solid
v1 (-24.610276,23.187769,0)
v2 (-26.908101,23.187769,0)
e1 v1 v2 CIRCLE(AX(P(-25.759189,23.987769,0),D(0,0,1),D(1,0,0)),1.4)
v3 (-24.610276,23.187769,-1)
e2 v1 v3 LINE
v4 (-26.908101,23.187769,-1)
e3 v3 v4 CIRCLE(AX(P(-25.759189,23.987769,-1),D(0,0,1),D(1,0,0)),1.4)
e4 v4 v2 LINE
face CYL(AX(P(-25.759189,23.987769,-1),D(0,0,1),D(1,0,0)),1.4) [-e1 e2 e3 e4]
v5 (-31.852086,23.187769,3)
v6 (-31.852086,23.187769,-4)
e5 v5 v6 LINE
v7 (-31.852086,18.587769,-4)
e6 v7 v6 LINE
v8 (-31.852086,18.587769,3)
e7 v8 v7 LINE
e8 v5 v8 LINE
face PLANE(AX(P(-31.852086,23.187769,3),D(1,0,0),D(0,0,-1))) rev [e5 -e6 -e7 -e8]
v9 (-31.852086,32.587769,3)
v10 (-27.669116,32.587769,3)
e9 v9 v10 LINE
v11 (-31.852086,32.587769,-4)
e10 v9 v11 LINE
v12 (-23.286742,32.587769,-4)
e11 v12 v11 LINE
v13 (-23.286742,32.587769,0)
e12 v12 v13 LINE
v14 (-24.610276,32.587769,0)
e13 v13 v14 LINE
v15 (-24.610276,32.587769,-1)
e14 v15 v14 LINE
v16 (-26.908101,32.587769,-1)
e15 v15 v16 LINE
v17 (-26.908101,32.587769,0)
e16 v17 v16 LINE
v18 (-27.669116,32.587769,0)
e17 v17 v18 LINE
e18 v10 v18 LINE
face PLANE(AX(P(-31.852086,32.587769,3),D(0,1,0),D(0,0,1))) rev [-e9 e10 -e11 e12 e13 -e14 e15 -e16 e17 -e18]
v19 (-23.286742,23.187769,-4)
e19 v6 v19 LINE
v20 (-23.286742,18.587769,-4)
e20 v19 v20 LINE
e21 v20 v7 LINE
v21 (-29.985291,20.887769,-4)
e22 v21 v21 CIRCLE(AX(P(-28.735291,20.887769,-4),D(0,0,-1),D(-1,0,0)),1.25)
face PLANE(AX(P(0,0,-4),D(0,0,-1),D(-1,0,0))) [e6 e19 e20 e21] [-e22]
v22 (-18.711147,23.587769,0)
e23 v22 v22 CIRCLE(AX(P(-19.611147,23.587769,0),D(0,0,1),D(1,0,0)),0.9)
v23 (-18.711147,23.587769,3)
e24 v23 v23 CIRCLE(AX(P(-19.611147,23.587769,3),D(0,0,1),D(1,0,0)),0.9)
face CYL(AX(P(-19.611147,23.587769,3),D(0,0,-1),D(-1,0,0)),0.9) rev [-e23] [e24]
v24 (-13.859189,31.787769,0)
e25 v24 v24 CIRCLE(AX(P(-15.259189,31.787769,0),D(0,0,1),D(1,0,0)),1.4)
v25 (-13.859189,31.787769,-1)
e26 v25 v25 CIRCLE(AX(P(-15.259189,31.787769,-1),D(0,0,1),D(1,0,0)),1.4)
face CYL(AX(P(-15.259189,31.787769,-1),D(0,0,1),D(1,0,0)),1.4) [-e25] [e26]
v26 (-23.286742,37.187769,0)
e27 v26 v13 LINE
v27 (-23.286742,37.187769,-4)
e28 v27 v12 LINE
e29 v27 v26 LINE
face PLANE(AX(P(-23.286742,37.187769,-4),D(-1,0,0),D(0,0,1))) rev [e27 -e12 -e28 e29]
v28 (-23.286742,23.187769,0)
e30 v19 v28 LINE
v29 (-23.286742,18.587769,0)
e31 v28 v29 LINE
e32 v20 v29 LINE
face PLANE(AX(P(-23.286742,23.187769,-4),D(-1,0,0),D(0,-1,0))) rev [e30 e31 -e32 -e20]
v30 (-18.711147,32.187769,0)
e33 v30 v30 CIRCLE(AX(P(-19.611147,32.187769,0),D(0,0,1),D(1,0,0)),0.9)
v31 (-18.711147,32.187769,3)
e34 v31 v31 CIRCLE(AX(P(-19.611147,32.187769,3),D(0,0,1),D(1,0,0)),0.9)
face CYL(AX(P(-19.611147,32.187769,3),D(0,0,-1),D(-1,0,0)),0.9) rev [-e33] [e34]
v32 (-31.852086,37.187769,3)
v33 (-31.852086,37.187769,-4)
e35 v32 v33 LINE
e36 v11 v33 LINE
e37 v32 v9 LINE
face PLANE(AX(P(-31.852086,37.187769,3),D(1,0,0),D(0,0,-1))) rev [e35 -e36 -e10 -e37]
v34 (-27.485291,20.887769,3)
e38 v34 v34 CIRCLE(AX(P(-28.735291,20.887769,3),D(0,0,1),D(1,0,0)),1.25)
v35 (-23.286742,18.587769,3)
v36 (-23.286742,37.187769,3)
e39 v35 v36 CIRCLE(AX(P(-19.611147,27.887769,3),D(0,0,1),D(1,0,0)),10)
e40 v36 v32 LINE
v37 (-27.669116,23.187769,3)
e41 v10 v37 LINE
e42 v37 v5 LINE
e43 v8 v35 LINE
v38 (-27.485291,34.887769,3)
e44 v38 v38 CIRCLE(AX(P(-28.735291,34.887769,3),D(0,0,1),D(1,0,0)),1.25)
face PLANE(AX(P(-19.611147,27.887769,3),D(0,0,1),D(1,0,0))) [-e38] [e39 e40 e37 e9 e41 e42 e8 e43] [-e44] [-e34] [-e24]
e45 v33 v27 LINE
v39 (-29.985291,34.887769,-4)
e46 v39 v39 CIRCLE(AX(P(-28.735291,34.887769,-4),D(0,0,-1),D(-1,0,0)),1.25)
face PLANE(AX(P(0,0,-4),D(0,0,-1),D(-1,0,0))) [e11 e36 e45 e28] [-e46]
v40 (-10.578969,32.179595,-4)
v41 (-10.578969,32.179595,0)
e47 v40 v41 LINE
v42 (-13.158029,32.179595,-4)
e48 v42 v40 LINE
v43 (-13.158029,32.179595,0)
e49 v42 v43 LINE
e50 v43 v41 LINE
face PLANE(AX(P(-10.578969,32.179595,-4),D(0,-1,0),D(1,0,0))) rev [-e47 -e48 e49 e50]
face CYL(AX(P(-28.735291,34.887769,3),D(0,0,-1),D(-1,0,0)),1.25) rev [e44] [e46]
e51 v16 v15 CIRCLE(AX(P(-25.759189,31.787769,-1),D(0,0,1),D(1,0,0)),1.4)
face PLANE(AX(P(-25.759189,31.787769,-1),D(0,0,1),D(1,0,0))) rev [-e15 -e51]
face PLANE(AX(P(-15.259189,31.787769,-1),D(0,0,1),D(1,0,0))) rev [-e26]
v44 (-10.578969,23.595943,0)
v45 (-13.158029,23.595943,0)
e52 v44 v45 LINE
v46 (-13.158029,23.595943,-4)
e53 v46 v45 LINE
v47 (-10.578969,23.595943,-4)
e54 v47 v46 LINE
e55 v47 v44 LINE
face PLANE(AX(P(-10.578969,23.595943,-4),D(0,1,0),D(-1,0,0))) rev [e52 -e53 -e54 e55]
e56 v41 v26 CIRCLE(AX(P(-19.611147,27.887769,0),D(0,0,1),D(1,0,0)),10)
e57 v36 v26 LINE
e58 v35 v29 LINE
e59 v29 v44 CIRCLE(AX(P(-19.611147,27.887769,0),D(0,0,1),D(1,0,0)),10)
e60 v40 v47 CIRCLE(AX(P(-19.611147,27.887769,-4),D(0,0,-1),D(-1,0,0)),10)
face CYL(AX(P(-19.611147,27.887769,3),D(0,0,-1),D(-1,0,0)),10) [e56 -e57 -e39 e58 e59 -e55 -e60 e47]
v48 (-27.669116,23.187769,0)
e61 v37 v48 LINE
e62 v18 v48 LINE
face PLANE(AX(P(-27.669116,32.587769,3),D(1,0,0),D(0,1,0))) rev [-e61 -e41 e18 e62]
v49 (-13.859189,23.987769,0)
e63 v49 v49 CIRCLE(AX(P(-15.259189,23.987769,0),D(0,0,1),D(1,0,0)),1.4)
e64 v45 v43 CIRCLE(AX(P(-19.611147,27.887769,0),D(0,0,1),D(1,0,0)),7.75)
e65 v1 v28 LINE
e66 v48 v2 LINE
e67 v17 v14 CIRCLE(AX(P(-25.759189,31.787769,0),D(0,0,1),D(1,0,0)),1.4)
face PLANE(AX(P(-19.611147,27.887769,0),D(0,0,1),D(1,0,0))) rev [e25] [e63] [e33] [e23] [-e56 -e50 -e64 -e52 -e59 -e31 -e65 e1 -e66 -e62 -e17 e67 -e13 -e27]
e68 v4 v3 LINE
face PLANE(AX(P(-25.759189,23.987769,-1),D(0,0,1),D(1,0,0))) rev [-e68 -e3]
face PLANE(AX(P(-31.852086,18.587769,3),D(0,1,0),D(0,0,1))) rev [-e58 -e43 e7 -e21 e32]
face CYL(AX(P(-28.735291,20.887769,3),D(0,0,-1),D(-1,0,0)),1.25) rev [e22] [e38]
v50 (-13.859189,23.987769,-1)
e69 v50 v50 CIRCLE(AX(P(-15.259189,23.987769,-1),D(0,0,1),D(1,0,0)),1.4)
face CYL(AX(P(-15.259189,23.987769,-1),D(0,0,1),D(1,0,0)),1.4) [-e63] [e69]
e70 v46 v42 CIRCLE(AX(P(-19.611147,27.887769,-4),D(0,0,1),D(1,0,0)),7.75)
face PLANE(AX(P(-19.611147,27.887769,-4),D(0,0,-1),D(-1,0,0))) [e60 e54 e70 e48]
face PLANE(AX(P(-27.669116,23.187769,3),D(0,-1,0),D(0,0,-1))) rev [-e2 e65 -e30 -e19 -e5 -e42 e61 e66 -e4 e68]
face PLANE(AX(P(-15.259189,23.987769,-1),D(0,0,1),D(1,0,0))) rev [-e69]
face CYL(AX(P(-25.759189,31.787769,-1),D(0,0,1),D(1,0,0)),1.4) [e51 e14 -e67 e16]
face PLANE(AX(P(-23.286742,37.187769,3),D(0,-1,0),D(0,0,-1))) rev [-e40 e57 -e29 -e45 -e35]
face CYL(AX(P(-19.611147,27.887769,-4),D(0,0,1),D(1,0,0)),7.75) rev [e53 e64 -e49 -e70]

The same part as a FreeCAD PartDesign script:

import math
import FreeCAD as App
import Part
import Sketcher
from FreeCAD import Vector

doc = App.newDocument("Part")
body = doc.addObject("PartDesign::Body", "Body")

# Sketch on XY plane
sketch1 = doc.addObject("Sketcher::SketchObject", "Sketch")
body.addObject(sketch1)
sketch1.AttachmentSupport = (doc.XY_Plane, [""])
sketch1.MapMode = "FlatFace"
sketch1.addGeometry([
    Part.LineSegment(Vector(-23.3, 37.2, 0), Vector(-31.9, 37.2, 0)),  # 0
    Part.LineSegment(Vector(-31.9, 37.2, 0), Vector(-31.9, 32.6, 0)),  # 1
    Part.LineSegment(Vector(-31.9, 32.6, 0), Vector(-27.7, 32.6, 0)),  # 2
    Part.LineSegment(Vector(-27.7, 32.6, 0), Vector(-27.7, 23.2, 0)),  # 3
    Part.LineSegment(Vector(-27.7, 23.2, 0), Vector(-31.9, 23.2, 0)),  # 4
    Part.LineSegment(Vector(-31.9, 23.2, 0), Vector(-31.9, 18.6, 0)),  # 5
    Part.LineSegment(Vector(-31.9, 18.6, 0), Vector(-23.3, 18.6, 0)),  # 6
    Part.ArcOfCircle(Part.Circle(Vector(-19.6, 27.9, 0), Vector(0, 0, 1), 10), math.radians(-112), math.radians(112)),  # 7
    Part.Circle(Vector(-28.7, 20.9, 0), Vector(0, 0, 1), 1.2),  # 8
    Part.Circle(Vector(-19.6, 23.6, 0), Vector(0, 0, 1), 0.9),  # 9
    Part.Circle(Vector(-28.7, 34.9, 0), Vector(0, 0, 1), 1.2),  # 10
    Part.Circle(Vector(-19.6, 32.2, 0), Vector(0, 0, 1), 0.9),  # 11
], False)
sketch1.addConstraint([
    Sketcher.Constraint("Coincident", 0, 2, 1, 1),
    Sketcher.Constraint("Coincident", 1, 2, 2, 1),
    Sketcher.Constraint("Coincident", 2, 2, 3, 1),
    Sketcher.Constraint("Coincident", 3, 2, 4, 1),
    Sketcher.Constraint("Coincident", 4, 2, 5, 1),
    Sketcher.Constraint("Coincident", 5, 2, 6, 1),
    Sketcher.Constraint("Coincident", 6, 2, 7, 1),
    Sketcher.Constraint("Coincident", 7, 2, 0, 1),
    Sketcher.Constraint("Horizontal", 0),
    Sketcher.Constraint("Vertical", 1),
    Sketcher.Constraint("Horizontal", 2),
    Sketcher.Constraint("Vertical", 3),
    Sketcher.Constraint("Horizontal", 4),
    Sketcher.Constraint("Vertical", 5),
    Sketcher.Constraint("Horizontal", 6),
    Sketcher.Constraint("Equal", 8, 10),
    Sketcher.Constraint("Equal", 9, 11),
    Sketcher.Constraint("Vertical", 7, 3, 9, 3),
    Sketcher.Constraint("Vertical", 8, 3, 10, 3),
    Sketcher.Constraint("Vertical", 9, 3, 11, 3),
    Sketcher.Constraint("Vertical", 1, 2, 4, 2),
    Sketcher.Constraint("Vertical", 6, 2, 7, 2),
    Sketcher.Constraint("Equal", 1, 5),
    Sketcher.Constraint("Radius", 7, 10.0),
    Sketcher.Constraint("Diameter", 8, 2.5),
    Sketcher.Constraint("Diameter", 9, 1.8),
    Sketcher.Constraint("DistanceY", 1, 2, 1, 1, 4.6),
    Sketcher.Constraint("DistanceY", 3, 2, 3, 1, 9.4),
    Sketcher.Constraint("DistanceY", 8, 3, 7, 3, 7.0),
    Sketcher.Constraint("DistanceY", 7, 3, 10, 3, 7.0),
    Sketcher.Constraint("DistanceY", 11, 3, 0, 2, 5.0),
    Sketcher.Constraint("DistanceY", 5, 2, 9, 3, 5.0),
    Sketcher.Constraint("DistanceX", 2, 1, 2, 2, 4.18297),
    Sketcher.Constraint("DistanceX", 0, 2, 0, 1, 8.565344),
    Sketcher.Constraint("DistanceY", -1, 1, 7, 3, 27.887769),
    Sketcher.Constraint("DistanceX", 8, 3, -1, 1, 28.735291),
    Sketcher.Constraint("DistanceX", 6, 2, -1, 1, 23.286742),
])
pad1 = doc.addObject("PartDesign::Pad", "Pad")
body.addObject(pad1)
pad1.Profile = sketch1
pad1.Length = 3

# Sketch on XY plane
sketch2 = doc.addObject("Sketcher::SketchObject", "Sketch001")
body.addObject(sketch2)
sketch2.AttachmentSupport = (doc.XY_Plane, [""])
sketch2.MapMode = "FlatFace"
sketch2.addGeometry([
    Part.Circle(Vector(-25.8, 31.8, 0), Vector(0, 0, 1), 1.4),
    Part.Circle(Vector(-25.8, 24, 0), Vector(0, 0, 1), 1.4),
    Part.Circle(Vector(-15.3, 24, 0), Vector(0, 0, 1), 1.4),
    Part.Circle(Vector(-15.3, 31.8, 0), Vector(0, 0, 1), 1.4),
], False)
sketch2.addConstraint([
    Sketcher.Constraint("Equal", 0, 1),
    Sketcher.Constraint("Equal", 1, 2),
    Sketcher.Constraint("Equal", 2, 3),
    Sketcher.Constraint("Horizontal", 1, 3, 2, 3),
    Sketcher.Constraint("Horizontal", 0, 3, 3, 3),
    Sketcher.Constraint("Vertical", 0, 3, 1, 3),
    Sketcher.Constraint("Vertical", 2, 3, 3, 3),
    Sketcher.Constraint("Diameter", 0, 2.8),
    Sketcher.Constraint("DistanceY", 1, 3, 0, 3, 7.8),
    Sketcher.Constraint("DistanceX", 1, 3, 2, 3, 10.5),
    Sketcher.Constraint("DistanceX", 0, 3, -1, 1, 25.759189),
    Sketcher.Constraint("DistanceY", -1, 1, 0, 3, 31.787769),
])
pad2 = doc.addObject("PartDesign::Pad", "Pad001")
body.addObject(pad2)
pad2.Profile = sketch2
pad2.Length = 1
pad2.Reversed = True

# Sketch on XY plane
sketch3 = doc.addObject("Sketcher::SketchObject", "Sketch002")
body.addObject(sketch3)
sketch3.AttachmentSupport = (doc.XY_Plane, [""])
sketch3.MapMode = "FlatFace"
sketch3.AttachmentOffset = App.Placement(Vector(0, 0, -4), App.Rotation())
sketch3.addGeometry([
    Part.LineSegment(Vector(-23.3, 23.2, 0), Vector(-23.3, 18.6, 0)),  # 0
    Part.LineSegment(Vector(-23.3, 18.6, 0), Vector(-31.9, 18.6, 0)),  # 1
    Part.LineSegment(Vector(-31.9, 18.6, 0), Vector(-31.9, 23.2, 0)),  # 2
    Part.LineSegment(Vector(-31.9, 23.2, 0), Vector(-23.3, 23.2, 0)),  # 3
    Part.Circle(Vector(-28.7, 20.9, 0), Vector(0, 0, 1), 1.2),  # 4
    Part.LineSegment(Vector(-23.3, 37.2, 0), Vector(-23.3, 32.6, 0)),  # 5
    Part.LineSegment(Vector(-23.3, 32.6, 0), Vector(-31.9, 32.6, 0)),  # 6
    Part.LineSegment(Vector(-31.9, 32.6, 0), Vector(-31.9, 37.2, 0)),  # 7
    Part.LineSegment(Vector(-31.9, 37.2, 0), Vector(-23.3, 37.2, 0)),  # 8
    Part.Circle(Vector(-28.7, 34.9, 0), Vector(0, 0, 1), 1.2),  # 9
    Part.LineSegment(Vector(-13.2, 32.2, 0), Vector(-10.6, 32.2, 0)),  # 10
    Part.ArcOfCircle(Part.Circle(Vector(-19.6, 27.9, 0), Vector(0, 0, 1), 10), math.radians(-25), math.radians(25)),  # 11
    Part.LineSegment(Vector(-10.6, 23.6, 0), Vector(-13.2, 23.6, 0)),  # 12
    Part.ArcOfCircle(Part.Circle(Vector(-19.6, 27.9, 0), Vector(0, 0, 1), 7.8), math.radians(-34), math.radians(34)),  # 13
], False)
sketch3.addConstraint([
    Sketcher.Constraint("Coincident", 0, 2, 1, 1),
    Sketcher.Constraint("Coincident", 1, 2, 2, 1),
    Sketcher.Constraint("Coincident", 2, 2, 3, 1),
    Sketcher.Constraint("Coincident", 3, 2, 0, 1),
    Sketcher.Constraint("Coincident", 5, 2, 6, 1),
    Sketcher.Constraint("Coincident", 6, 2, 7, 1),
    Sketcher.Constraint("Coincident", 7, 2, 8, 1),
    Sketcher.Constraint("Coincident", 8, 2, 5, 1),
    Sketcher.Constraint("Coincident", 10, 2, 11, 2),
    Sketcher.Constraint("Coincident", 11, 1, 12, 1),
    Sketcher.Constraint("Coincident", 12, 2, 13, 1),
    Sketcher.Constraint("Coincident", 13, 2, 10, 1),
    Sketcher.Constraint("Vertical", 0),
    Sketcher.Constraint("Horizontal", 1),
    Sketcher.Constraint("Vertical", 2),
    Sketcher.Constraint("Horizontal", 3),
    Sketcher.Constraint("Vertical", 5),
    Sketcher.Constraint("Horizontal", 6),
    Sketcher.Constraint("Vertical", 7),
    Sketcher.Constraint("Horizontal", 8),
    Sketcher.Constraint("Horizontal", 10),
    Sketcher.Constraint("Horizontal", 12),
    Sketcher.Constraint("Coincident", 13, 3, 11, 3),
    Sketcher.Constraint("Equal", 4, 9),
    Sketcher.Constraint("Vertical", 4, 3, 9, 3),
    Sketcher.Constraint("Vertical", 3, 2, 5, 2),
    Sketcher.Constraint("Vertical", 2, 2, 6, 2),
    Sketcher.Constraint("Vertical", 10, 2, 11, 1),
    Sketcher.Constraint("Equal", 2, 5),
    Sketcher.Constraint("Radius", 11, 10.0),
    Sketcher.Constraint("Diameter", 4, 2.5),
    Sketcher.Constraint("Radius", 13, 7.75),
    Sketcher.Constraint("DistanceY", 0, 2, 0, 1, 4.6),
    Sketcher.Constraint("DistanceY", 4, 3, 9, 3, 14.0),
    Sketcher.Constraint("DistanceY", 11, 3, 9, 3, 7.0),
    Sketcher.Constraint("DistanceY", 2, 2, 7, 2, 14.0),
    Sketcher.Constraint("DistanceY", 0, 2, 4, 3, 2.3),
    Sketcher.Constraint("DistanceX", 10, 1, 10, 2, 2.57906),
    Sketcher.Constraint("DistanceX", 1, 2, 1, 1, 8.565344),
    Sketcher.Constraint("DistanceX", 4, 3, -1, 1, 28.735291),
    Sketcher.Constraint("DistanceY", -1, 1, 4, 3, 20.887769),
    Sketcher.Constraint("DistanceX", 0, 2, -1, 1, 23.286742),
    Sketcher.Constraint("DistanceX", 10, 2, -1, 1, 10.578969),
])
pad3 = doc.addObject("PartDesign::Pad", "Pad002")
body.addObject(pad3)
pad3.Profile = sketch3
pad3.Length = 4

doc.recompute()
